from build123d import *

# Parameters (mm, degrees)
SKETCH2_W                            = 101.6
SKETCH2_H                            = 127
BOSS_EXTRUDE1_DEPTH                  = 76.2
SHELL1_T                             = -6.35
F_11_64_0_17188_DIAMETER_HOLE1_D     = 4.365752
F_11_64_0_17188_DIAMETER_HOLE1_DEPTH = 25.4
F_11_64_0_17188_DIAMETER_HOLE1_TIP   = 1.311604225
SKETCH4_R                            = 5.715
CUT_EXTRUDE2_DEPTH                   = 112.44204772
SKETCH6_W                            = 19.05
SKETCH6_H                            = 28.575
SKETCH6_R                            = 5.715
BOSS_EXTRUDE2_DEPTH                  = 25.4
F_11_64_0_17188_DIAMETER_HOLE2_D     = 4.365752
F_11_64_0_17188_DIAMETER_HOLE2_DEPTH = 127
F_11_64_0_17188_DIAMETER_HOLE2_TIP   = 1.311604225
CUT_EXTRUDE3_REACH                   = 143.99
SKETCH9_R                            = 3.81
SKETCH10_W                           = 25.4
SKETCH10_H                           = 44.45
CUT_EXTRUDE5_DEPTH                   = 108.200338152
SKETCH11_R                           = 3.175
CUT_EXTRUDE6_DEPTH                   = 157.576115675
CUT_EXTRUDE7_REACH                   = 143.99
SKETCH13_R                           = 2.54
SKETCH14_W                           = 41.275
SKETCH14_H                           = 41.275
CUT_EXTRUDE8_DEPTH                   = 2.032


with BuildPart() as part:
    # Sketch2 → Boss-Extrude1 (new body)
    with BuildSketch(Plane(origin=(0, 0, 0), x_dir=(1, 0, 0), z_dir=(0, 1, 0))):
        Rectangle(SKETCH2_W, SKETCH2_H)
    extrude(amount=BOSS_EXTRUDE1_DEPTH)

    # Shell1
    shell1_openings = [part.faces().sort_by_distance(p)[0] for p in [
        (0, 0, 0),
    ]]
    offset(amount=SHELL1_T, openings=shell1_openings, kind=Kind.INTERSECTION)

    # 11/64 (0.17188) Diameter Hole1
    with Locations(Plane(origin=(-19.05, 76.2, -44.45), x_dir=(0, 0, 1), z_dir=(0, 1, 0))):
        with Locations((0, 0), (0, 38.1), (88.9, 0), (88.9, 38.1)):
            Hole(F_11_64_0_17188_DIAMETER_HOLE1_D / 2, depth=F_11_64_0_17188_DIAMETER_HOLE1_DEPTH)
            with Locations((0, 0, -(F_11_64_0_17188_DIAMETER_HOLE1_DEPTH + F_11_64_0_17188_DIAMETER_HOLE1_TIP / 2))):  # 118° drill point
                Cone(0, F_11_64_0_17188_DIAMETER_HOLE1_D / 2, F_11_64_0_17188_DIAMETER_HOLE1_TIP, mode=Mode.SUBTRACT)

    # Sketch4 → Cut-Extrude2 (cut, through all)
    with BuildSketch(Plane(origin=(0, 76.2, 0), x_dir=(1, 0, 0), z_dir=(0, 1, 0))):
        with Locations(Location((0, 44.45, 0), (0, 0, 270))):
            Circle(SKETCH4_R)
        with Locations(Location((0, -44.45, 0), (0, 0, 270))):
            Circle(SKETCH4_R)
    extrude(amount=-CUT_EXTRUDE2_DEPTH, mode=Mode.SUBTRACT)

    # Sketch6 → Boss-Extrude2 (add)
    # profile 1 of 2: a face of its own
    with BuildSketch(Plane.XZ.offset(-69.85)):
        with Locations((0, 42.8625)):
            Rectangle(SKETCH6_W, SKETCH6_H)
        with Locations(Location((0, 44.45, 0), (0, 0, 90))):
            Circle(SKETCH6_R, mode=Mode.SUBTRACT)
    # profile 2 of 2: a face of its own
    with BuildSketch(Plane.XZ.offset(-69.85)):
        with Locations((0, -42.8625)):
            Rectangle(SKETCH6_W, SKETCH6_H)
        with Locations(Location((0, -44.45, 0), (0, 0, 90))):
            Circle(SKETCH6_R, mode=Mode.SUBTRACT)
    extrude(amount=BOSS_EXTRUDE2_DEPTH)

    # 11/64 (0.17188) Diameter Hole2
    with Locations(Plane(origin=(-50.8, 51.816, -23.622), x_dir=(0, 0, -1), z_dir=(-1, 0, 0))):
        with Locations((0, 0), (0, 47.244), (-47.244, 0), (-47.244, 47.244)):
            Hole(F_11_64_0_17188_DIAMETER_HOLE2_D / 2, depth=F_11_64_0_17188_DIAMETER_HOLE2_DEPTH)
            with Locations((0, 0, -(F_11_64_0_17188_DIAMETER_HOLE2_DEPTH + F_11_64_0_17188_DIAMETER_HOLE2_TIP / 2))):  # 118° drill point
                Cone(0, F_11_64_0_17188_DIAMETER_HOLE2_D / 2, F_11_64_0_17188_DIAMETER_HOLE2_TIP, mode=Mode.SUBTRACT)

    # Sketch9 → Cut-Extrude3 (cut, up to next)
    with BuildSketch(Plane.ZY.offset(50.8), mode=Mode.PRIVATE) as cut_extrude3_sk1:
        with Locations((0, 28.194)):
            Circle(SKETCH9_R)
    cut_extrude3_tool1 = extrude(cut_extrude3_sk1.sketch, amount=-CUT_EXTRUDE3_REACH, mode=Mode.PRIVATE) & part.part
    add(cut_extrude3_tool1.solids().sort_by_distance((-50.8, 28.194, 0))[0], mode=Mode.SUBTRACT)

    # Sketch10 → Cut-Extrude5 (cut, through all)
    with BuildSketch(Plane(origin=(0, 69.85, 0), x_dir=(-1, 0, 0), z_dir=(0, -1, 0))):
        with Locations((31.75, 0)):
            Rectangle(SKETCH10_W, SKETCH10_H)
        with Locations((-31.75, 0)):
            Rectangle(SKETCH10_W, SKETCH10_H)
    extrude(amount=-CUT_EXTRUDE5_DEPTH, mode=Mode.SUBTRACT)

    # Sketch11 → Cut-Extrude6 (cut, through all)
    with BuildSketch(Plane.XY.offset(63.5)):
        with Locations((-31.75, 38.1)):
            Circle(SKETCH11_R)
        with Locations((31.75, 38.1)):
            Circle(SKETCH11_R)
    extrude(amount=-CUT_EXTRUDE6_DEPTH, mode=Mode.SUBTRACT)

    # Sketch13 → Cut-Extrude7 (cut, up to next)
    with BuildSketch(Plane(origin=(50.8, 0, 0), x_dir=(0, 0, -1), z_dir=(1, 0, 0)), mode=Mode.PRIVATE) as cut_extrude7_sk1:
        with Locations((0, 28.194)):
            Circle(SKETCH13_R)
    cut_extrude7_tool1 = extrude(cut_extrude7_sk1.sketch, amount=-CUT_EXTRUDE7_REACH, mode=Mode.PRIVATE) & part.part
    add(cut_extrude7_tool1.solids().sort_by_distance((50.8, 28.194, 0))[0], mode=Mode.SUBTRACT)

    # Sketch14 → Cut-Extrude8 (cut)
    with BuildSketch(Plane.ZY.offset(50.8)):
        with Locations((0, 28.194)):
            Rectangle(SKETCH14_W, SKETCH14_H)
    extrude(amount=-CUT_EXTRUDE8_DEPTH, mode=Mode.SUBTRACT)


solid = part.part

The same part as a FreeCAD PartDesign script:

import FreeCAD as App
import Part
import Sketcher
Q = App.Units.Quantity


def faces_at(feature, points):
    """Names of the faces that lie closest to the given points."""
    faces = feature.Shape.Faces
    near = lambda p: min(range(len(faces)), key=lambda i: faces[i].distToShape(Part.Vertex(*p))[0])
    return sorted({f"Face{near(p) + 1}" for p in points})

doc = App.newDocument("Part")
body = doc.addObject("PartDesign::Body", "Body")

sketch1 = doc.addObject("Sketcher::SketchObject", "Sketch")
body.addObject(sketch1)
sketch1.AttachmentSupport = (doc.XZ_Plane, [""])
sketch1.MapMode = "FlatFace"
sketch1.addGeometry([
    Part.LineSegment(App.Vector(-51, -64, 0), App.Vector(-51, 64, 0)),
    Part.LineSegment(App.Vector(-51, 64, 0), App.Vector(51, 64, 0)),
    Part.LineSegment(App.Vector(51, 64, 0), App.Vector(51, -64, 0)),
    Part.LineSegment(App.Vector(51, -64, 0), App.Vector(-51, -64, 0)),
], False)
sketch1.addConstraint([
    Sketcher.Constraint("Coincident", 0, 2, 1, 1),
    Sketcher.Constraint("Coincident", 1, 2, 2, 1),
    Sketcher.Constraint("Coincident", 2, 2, 3, 1),
    Sketcher.Constraint("Coincident", 3, 2, 0, 1),
    Sketcher.Constraint("Vertical", 0),
    Sketcher.Constraint("Horizontal", 1),
    Sketcher.Constraint("Vertical", 2),
    Sketcher.Constraint("Horizontal", 3),
    Sketcher.Constraint("Symmetric", 0, 2, 2, 2, -1, 1),
    Sketcher.Constraint("DistanceX", 1, 1, 1, 2, Q("4 in")),
    Sketcher.Constraint("DistanceY", 0, 1, 0, 2, Q("5 in")),
])
pad1 = doc.addObject("PartDesign::Pad", "Pad")
body.addObject(pad1)
pad1.Profile = sketch1
pad1.Length = Q("3 in")
pad1.Reversed = True
doc.recompute()

thickness = doc.addObject("PartDesign::Thickness", "Thickness")
body.addObject(thickness)
thickness.Base = (pad1, faces_at(pad1, [(0, 0, 0)]))
thickness.Value = Q("0.25 in")
thickness.Reversed = True
thickness.Join = "Intersection"

sketch2 = doc.addObject("Sketcher::SketchObject", "Sketch001")
body.addObject(sketch2)
sketch2.AttachmentSupport = (doc.XZ_Plane, [""])
sketch2.MapMode = "FlatFace"
sketch2.AttachmentOffset = App.Placement(App.Vector(0, 0, -3 * 25.4), App.Rotation())
sketch2.addGeometry([
    Part.Circle(App.Vector(-19.1, -44.5, 0), App.Vector(0, 0, 1), 2.2),
    Part.Circle(App.Vector(19.1, -44.5, 0), App.Vector(0, 0, 1), 2.2),
    Part.Circle(App.Vector(-19.1, 44.5, 0), App.Vector(0, 0, 1), 2.2),
    Part.Circle(App.Vector(19.1, 44.5, 0), App.Vector(0, 0, 1), 2.2),
], False)
sketch2.addConstraint([
    Sketcher.Constraint("Equal", 0, 1),
    Sketcher.Constraint("Equal", 1, 2),
    Sketcher.Constraint("Equal", 2, 3),
    Sketcher.Constraint("Symmetric", 1, 3, 2, 3, -1, 1),
    Sketcher.Constraint("Symmetric", 0, 3, 3, 3, -1, 1),
    Sketcher.Constraint("Symmetric", 0, 3, 1, 3, -2),
    Sketcher.Constraint("DistanceX", 0, 3, 1, 3, Q("1.5 in")),
    Sketcher.Constraint("DistanceY", 0, 3, 2, 3, Q("3.5 in")),
    Sketcher.Constraint("Diameter", 0, Q("4.365752 mm")),
])
doc.recompute()
hole = doc.addObject("PartDesign::Hole", "Hole")
body.addObject(hole)
hole.Profile = sketch2
hole.ThreadType = "None"
hole.Diameter = 4.365752
hole.DepthType = "Dimension"
hole.Depth = Q("1 in")
hole.DrillPoint = "Angled"
hole.DrillPointAngle = 118
hole.Reversed = True

sketch3 = doc.addObject("Sketcher::SketchObject", "Sketch002")
body.addObject(sketch3)
sketch3.AttachmentSupport = (doc.XZ_Plane, [""])
sketch3.MapMode = "FlatFace"
sketch3.AttachmentOffset = App.Placement(App.Vector(0, 0, -3 * 25.4), App.Rotation())
sketch3.addGeometry([
    Part.Circle(App.Vector(0, -44, 0), App.Vector(0, 0, 1), 6),
    Part.Circle(App.Vector(0, 44, 0), App.Vector(0, 0, 1), 6),
], False)
sketch3.addConstraint([
    Sketcher.Constraint("Equal", 0, 1),
    Sketcher.Constraint("Symmetric", 0, 3, 1, 3, -1, 1),
    Sketcher.Constraint("PointOnObject", 0, 3, -2),
    Sketcher.Constraint("Diameter", 0, Q("0.45 in")),
    Sketcher.Constraint("DistanceY", 0, 3, 1, 3, Q("3.5 in")),
])
pocket1 = doc.addObject("PartDesign::Pocket", "Pocket")
body.addObject(pocket1)
pocket1.Profile = sketch3
pocket1.Type = "ThroughAll"
pocket1.Reversed = True

sketch4 = doc.addObject("Sketcher::SketchObject", "Sketch003")
body.addObject(sketch4)
sketch4.AttachmentSupport = (doc.XZ_Plane, [""])
sketch4.MapMode = "FlatFace"
sketch4.AttachmentOffset = App.Placement(App.Vector(0, 0, -2.75 * 25.4), App.Rotation())
sketch4.addGeometry([
    Part.LineSegment(App.Vector(-10, 57, 0), App.Vector(-10, 29, 0)),
    Part.LineSegment(App.Vector(-10, 29, 0), App.Vector(10, 29, 0)),
    Part.LineSegment(App.Vector(10, 29, 0), App.Vector(10, 57, 0)),
    Part.LineSegment(App.Vector(10, 57, 0), App.Vector(-10, 57, 0)),
    Part.Circle(App.Vector(0, 44, 0), App.Vector(0, 0, 1), 6),
    Part.LineSegment(App.Vector(-10, -29, 0), App.Vector(-10, -57, 0)),
    Part.LineSegment(App.Vector(-10, -57, 0), App.Vector(10, -57, 0)),
    Part.LineSegment(App.Vector(10, -57, 0), App.Vector(10, -29, 0)),
    Part.LineSegment(App.Vector(10, -29, 0), App.Vector(-10, -29, 0)),
    Part.Circle(App.Vector(0, -44, 0), App.Vector(0, 0, 1), 6),
], False)
sketch4.addConstraint([
    Sketcher.Constraint("Coincident", 0, 2, 1, 1),
    Sketcher.Constraint("Coincident", 1, 2, 2, 1),
    Sketcher.Constraint("Coincident", 2, 2, 3, 1),
    Sketcher.Constraint("Coincident", 3, 2, 0, 1),
    Sketcher.Constraint("Coincident", 5, 2, 6, 1),
    Sketcher.Constraint("Coincident", 6, 2, 7, 1),
    Sketcher.Constraint("Coincident", 7, 2, 8, 1),
    Sketcher.Constraint("Coincident", 8, 2, 5, 1),
    Sketcher.Constraint("Vertical", 0),
    Sketcher.Constraint("Horizontal", 1),
    Sketcher.Constraint("Vertical", 2),
    Sketcher.Constraint("Horizontal", 3),
    Sketcher.Constraint("Vertical", 5),
    Sketcher.Constraint("Horizontal", 6),
    Sketcher.Constraint("Vertical", 7),
    Sketcher.Constraint("Horizontal", 8),
    Sketcher.Constraint("Equal", 4, 9),
    Sketcher.Constraint("Symmetric", 4, 3, 9, 3, -1, 1),
    Sketcher.Constraint("Symmetric", 2, 2, 5, 2, -1, 1),
    Sketcher.Constraint("Symmetric", 0, 2, 7, 2, -1, 1),
    Sketcher.Constraint("PointOnObject", 4, 3, -2),
    Sketcher.Constraint("Vertical", 3, 2, 5, 2),
    Sketcher.Constraint("Diameter", 4, Q("0.45 in")),
    Sketcher.Constraint("DistanceY", 9, 3, 2, 2, Q("4 in")),
    Sketcher.Constraint("DistanceX", 1, 1, 1, 2, Q("0.75 in")),
    Sketcher.Constraint("DistanceY", 9, 3, 4, 3, Q("3.5 in")),
    Sketcher.Constraint("DistanceY", 0, 2, 0, 1, Q("1.125 in")),
])
pad2 = doc.addObject("PartDesign::Pad", "Pad001")
body.addObject(pad2)
pad2.Profile = sketch4
pad2.Length = Q("1 in")

sketch5 = doc.addObject("Sketcher::SketchObject", "Sketch004")
body.addObject(sketch5)
sketch5.AttachmentSupport = (doc.YZ_Plane, [""])
sketch5.MapMode = "FlatFace"
sketch5.AttachmentOffset = App.Placement(App.Vector(0, 0, -2 * 25.4), App.Rotation())
sketch5.addGeometry([
    Part.Circle(App.Vector(51.8, -23.6, 0), App.Vector(0, 0, 1), 2.2),
    Part.Circle(App.Vector(4.6, -23.6, 0), App.Vector(0, 0, 1), 2.2),
    Part.Circle(App.Vector(51.8, 23.6, 0), App.Vector(0, 0, 1), 2.2),
    Part.Circle(App.Vector(4.6, 23.6, 0), App.Vector(0, 0, 1), 2.2),
], False)
sketch5.addConstraint([
    Sketcher.Constraint("Equal", 0, 1),
    Sketcher.Constraint("Equal", 1, 2),
    Sketcher.Constraint("Equal", 2, 3),
    Sketcher.Constraint("Symmetric", 0, 3, 2, 3, -1),
    Sketcher.Constraint("Symmetric", 1, 3, 3, 3, -1),
    Sketcher.Constraint("Horizontal", 0, 3, 1, 3),
    Sketcher.Constraint("DistanceX", -1, 1, 0, 3, Q("2.04 in")),
    Sketcher.Constraint("DistanceY", 0, 3, -1, 1, Q("0.93 in")),
    Sketcher.Constraint("DistanceX", -1, 1, 1, 3, Q("0.18 in")),
    Sketcher.Constraint("Diameter", 0, Q("4.365752 mm")),
])
doc.recompute()
hole2 = doc.addObject("PartDesign::Hole", "Hole001")
body.addObject(hole2)
hole2.Profile = sketch5
hole2.ThreadType = "None"
hole2.Diameter = 4.365752
hole2.DepthType = "Dimension"
hole2.Depth = Q("5 in")
hole2.DrillPoint = "Angled"
hole2.DrillPointAngle = 118
hole2.Reversed = True

sketch6 = doc.addObject("Sketcher::SketchObject", "Sketch005")
body.addObject(sketch6)
sketch6.AttachmentSupport = (doc.YZ_Plane, [""])
sketch6.MapMode = "FlatFace"
sketch6.AttachmentOffset = App.Placement(App.Vector(0, 0, -2 * 25.4), App.Rotation())
sketch6.addGeometry(Part.Circle(App.Vector(28.2, 0, 0), App.Vector(0, 0, 1), 3.8), False)
sketch6.addConstraint([
    Sketcher.Constraint("PointOnObject", 0, 3, -1),
    Sketcher.Constraint("Diameter", 0, Q("0.3 in")),
    Sketcher.Constraint("DistanceX", -1, 1, 0, 3, Q("1.11 in")),
])
pocket2 = doc.addObject("PartDesign::Pocket", "Pocket001")
body.addObject(pocket2)
pocket2.Profile = sketch6
pocket2.Type = "UpToFirst"
pocket2.Reversed = True

sketch7 = doc.addObject("Sketcher::SketchObject", "Sketch006")
body.addObject(sketch7)
sketch7.AttachmentSupport = (doc.XZ_Plane, [""])
sketch7.MapMode = "FlatFace"
sketch7.AttachmentOffset = App.Placement(App.Vector(0, 0, -2.75 * 25.4), App.Rotation())
sketch7.addGeometry([
    Part.LineSegment(App.Vector(-19, -22, 0), App.Vector(-19, 22, 0)),
    Part.LineSegment(App.Vector(-19, 22, 0), App.Vector(-44, 22, 0)),
    Part.LineSegment(App.Vector(-44, 22, 0), App.Vector(-44, -22, 0)),
    Part.LineSegment(App.Vector(-44, -22, 0), App.Vector(-19, -22, 0)),
    Part.LineSegment(App.Vector(44, -22, 0), App.Vector(44, 22, 0)),
    Part.LineSegment(App.Vector(44, 22, 0), App.Vector(19, 22, 0)),
    Part.LineSegment(App.Vector(19, 22, 0), App.Vector(19, -22, 0)),
    Part.LineSegment(App.Vector(19, -22, 0), App.Vector(44, -22, 0)),
], False)
sketch7.addConstraint([
    Sketcher.Constraint("Coincident", 0, 2, 1, 1),
    Sketcher.Constraint("Coincident", 1, 2, 2, 1),
    Sketcher.Constraint("Coincident", 2, 2, 3, 1),
    Sketcher.Constraint("Coincident", 3, 2, 0, 1),
    Sketcher.Constraint("Coincident", 4, 2, 5, 1),
    Sketcher.Constraint("Coincident", 5, 2, 6, 1),
    Sketcher.Constraint("Coincident", 6, 2, 7, 1),
    Sketcher.Constraint("Coincident", 7, 2, 4, 1),
    Sketcher.Constraint("Vertical", 0),
    Sketcher.Constraint("Horizontal", 1),
    Sketcher.Constraint("Vertical", 2),
    Sketcher.Constraint("Horizontal", 3),
    Sketcher.Constraint("Vertical", 4),
    Sketcher.Constraint("Horizontal", 5),
    Sketcher.Constraint("Vertical", 6),
    Sketcher.Constraint("Horizontal", 7),
    Sketcher.Constraint("Symmetric", 2, 2, 4, 2, -1, 1),
    Sketcher.Constraint("Symmetric", 0, 2, 6, 2, -1, 1),
    Sketcher.Constraint("Horizontal", 1, 2, 4, 2),
    Sketcher.Constraint("DistanceX", 1, 2, 1, 1, Q("1 in")),
    Sketcher.Constraint("DistanceY", 0, 1, 0, 2, Q("1.75 in")),
    Sketcher.Constraint("DistanceX", 0, 2, 4, 2, Q("2.5 in")),
])
pocket3 = doc.addObject("PartDesign::Pocket", "Pocket002")
body.addObject(pocket3)
pocket3.Profile = sketch7
pocket3.Type = "ThroughAll"

sketch8 = doc.addObject("Sketcher::SketchObject", "Sketch007")
body.addObject(sketch8)
sketch8.AttachmentSupport = (doc.XY_Plane, [""])
sketch8.MapMode = "FlatFace"
sketch8.AttachmentOffset = App.Placement(App.Vector(0, 0, 2.5 * 25.4), App.Rotation())
sketch8.addGeometry([
    Part.Circle(App.Vector(-31.8, 38.1, 0), App.Vector(0, 0, 1), 3.2),
    Part.Circle(App.Vector(31.8, 38.1, 0), App.Vector(0, 0, 1), 3.2),
], False)
sketch8.addConstraint([
    Sketcher.Constraint("Equal", 0, 1),
    Sketcher.Constraint("Symmetric", 0, 3, 1, 3, -2),
    Sketcher.Constraint("Diameter", 0, Q("0.25 in")),
    Sketcher.Constraint("DistanceY", -1, 1, 0, 3, Q("1.5 in")),
    Sketcher.Constraint("DistanceX", 0, 3, 1, 3, Q("2.5 in")),
])
pocket4 = doc.addObject("PartDesign::Pocket", "Pocket003")
body.addObject(pocket4)
pocket4.Profile = sketch8
pocket4.Type = "ThroughAll"

sketch9 = doc.addObject("Sketcher::SketchObject", "Sketch008")
body.addObject(sketch9)
sketch9.AttachmentSupport = (doc.YZ_Plane, [""])
sketch9.MapMode = "FlatFace"
sketch9.AttachmentOffset = App.Placement(App.Vector(0, 0, 2 * 25.4), App.Rotation())
sketch9.addGeometry(Part.Circle(App.Vector(28.2, 0, 0), App.Vector(0, 0, 1), 2.5), False)
sketch9.addConstraint([
    Sketcher.Constraint("PointOnObject", 0, 3, -1),
    Sketcher.Constraint("Diameter", 0, Q("0.2 in")),
    Sketcher.Constraint("DistanceX", -1, 1, 0, 3, Q("1.11 in")),
])
pocket5 = doc.addObject("PartDesign::Pocket", "Pocket004")
body.addObject(pocket5)
pocket5.Profile = sketch9
pocket5.Type = "UpToFirst"

sketch10 = doc.addObject("Sketcher::SketchObject", "Sketch009")
body.addObject(sketch10)
sketch10.AttachmentSupport = (doc.YZ_Plane, [""])
sketch10.MapMode = "FlatFace"
sketch10.AttachmentOffset = App.Placement(App.Vector(0, 0, -2 * 25.4), App.Rotation())
sketch10.addGeometry([
    Part.LineSegment(App.Vector(49, -21, 0), App.Vector(8, -21, 0)),
    Part.LineSegment(App.Vector(8, -21, 0), App.Vector(8, 21, 0)),
    Part.LineSegment(App.Vector(8, 21, 0), App.Vector(49, 21, 0)),
    Part.LineSegment(App.Vector(49, 21, 0), App.Vector(49, -21, 0)),
], False)
sketch10.addConstraint([
    Sketcher.Constraint("Coincident", 0, 2, 1, 1),
    Sketcher.Constraint("Coincident", 1, 2, 2, 1),
    Sketcher.Constraint("Coincident", 2, 2, 3, 1),
    Sketcher.Constraint("Coincident", 3, 2, 0, 1),
    Sketcher.Constraint("Horizontal", 0),
    Sketcher.Constraint("Vertical", 1),
    Sketcher.Constraint("Horizontal", 2),
    Sketcher.Constraint("Vertical", 3),
    Sketcher.Constraint("Equal", 2, 1),
    Sketcher.Constraint("DistanceX", 0, 2, 0, 1, Q("1.625 in")),
    Sketcher.Constraint("DistanceY", 0, 2, -1, 1, Q("0.8125 in")),
    Sketcher.Constraint("DistanceX", -1, 1, 0, 2, Q("0.2975 in")),
])
pocket6 = doc.addObject("PartDesign::Pocket", "Pocket005")
body.addObject(pocket6)
pocket6.Profile = sketch10
pocket6.Length = Q("0.08 in")
pocket6.Reversed = True

doc.recompute()
